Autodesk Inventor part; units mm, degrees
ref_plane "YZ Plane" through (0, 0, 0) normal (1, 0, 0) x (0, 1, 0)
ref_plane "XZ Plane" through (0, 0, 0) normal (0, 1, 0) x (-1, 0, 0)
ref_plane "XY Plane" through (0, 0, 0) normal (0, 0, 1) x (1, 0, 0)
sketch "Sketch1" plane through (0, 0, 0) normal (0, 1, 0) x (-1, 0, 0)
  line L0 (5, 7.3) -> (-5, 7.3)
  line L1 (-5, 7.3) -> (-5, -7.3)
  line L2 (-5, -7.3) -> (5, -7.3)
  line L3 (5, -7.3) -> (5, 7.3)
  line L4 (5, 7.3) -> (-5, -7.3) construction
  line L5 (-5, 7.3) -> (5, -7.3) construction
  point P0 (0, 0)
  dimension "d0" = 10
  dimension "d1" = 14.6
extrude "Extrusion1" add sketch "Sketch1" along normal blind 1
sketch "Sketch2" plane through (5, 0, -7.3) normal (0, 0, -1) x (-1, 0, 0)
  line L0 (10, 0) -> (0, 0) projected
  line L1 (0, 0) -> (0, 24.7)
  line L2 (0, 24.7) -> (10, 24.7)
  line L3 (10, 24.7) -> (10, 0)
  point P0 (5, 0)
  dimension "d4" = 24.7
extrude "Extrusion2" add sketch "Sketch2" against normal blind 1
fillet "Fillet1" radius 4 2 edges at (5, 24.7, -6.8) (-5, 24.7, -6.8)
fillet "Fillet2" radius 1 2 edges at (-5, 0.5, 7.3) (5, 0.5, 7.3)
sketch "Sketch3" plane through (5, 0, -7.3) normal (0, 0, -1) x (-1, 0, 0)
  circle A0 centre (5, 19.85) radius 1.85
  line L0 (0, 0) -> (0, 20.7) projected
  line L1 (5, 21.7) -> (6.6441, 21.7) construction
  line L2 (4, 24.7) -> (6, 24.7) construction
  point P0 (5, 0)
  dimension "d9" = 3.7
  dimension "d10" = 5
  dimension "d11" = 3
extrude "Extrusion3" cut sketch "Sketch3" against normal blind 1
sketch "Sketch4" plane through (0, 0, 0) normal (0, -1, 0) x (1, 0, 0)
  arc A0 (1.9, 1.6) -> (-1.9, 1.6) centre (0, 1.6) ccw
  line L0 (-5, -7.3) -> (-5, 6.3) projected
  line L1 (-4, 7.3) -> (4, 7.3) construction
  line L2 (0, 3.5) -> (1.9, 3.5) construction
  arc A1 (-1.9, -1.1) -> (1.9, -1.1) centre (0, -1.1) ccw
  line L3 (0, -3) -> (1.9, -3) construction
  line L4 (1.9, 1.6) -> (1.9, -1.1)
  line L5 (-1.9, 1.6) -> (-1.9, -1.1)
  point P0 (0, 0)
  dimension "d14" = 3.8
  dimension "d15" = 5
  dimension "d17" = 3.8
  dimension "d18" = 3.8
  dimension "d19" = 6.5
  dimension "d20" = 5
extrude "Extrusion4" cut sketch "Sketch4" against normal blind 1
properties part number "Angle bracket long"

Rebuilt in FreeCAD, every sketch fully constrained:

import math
import FreeCAD as App
import Part
import Sketcher

V = App.Vector


def edges_at(feature, points):
    """Names of the edges that pass closest to the given points."""
    edges = feature.Shape.Edges
    near = lambda p: min(range(len(edges)), key=lambda i: edges[i].distToShape(Part.Vertex(*p))[0])
    return sorted({f"Edge{near(p) + 1}" for p in points})


def add_polygon(sketch, points):
    """Adds a closed chain of lines whose ends are joined by coincident constraints."""
    first, n = sketch.GeometryCount, len(points)
    for a, b in zip(points, points[1:] + points[:1]):
        sketch.addGeometry(Part.LineSegment(App.Vector(*a, 0), App.Vector(*b, 0)), False)
    for i in range(n):
        sketch.addConstraint(Sketcher.Constraint("Coincident", first + i, 2, first + (i + 1) % n, 1))

doc = App.newDocument("Part")
body = doc.addObject("PartDesign::Body", "Body")

# Sketch on XZ plane
sketch1 = doc.addObject("Sketcher::SketchObject", "Sketch")
body.addObject(sketch1)
sketch1.AttachmentSupport = (doc.XZ_Plane, [""])
sketch1.MapMode = "FlatFace"
add_polygon(sketch1, [(-5, -7.3), (-5, 7.3), (5, 7.3), (5, -7.3)])  # lines 0-3
sketch1.addConstraint([
    Sketcher.Constraint("Vertical", 0),
    Sketcher.Constraint("Horizontal", 1),
    Sketcher.Constraint("Vertical", 2),
    Sketcher.Constraint("Horizontal", 3),
    Sketcher.Constraint("Symmetric", 0, 2, 2, 2, -1, 1),
    Sketcher.Constraint("DistanceX", 1, 1, 1, 2, 10.0),
    Sketcher.Constraint("DistanceY", 0, 1, 0, 2, 14.6),
])
pad1 = doc.addObject("PartDesign::Pad", "Pad")
body.addObject(pad1)
pad1.Profile = sketch1
pad1.Length = 1
pad1.Reversed = True

# Sketch on XY plane
sketch2 = doc.addObject("Sketcher::SketchObject", "Sketch001")
body.addObject(sketch2)
sketch2.AttachmentSupport = (doc.XY_Plane, [""])
sketch2.MapMode = "FlatFace"
sketch2.AttachmentOffset = App.Placement(V(0, 0, -7.3), App.Rotation())
add_polygon(sketch2, [(5, 0), (-5, 0), (-5, 24.7), (5, 24.7)])  # lines 0-3
sketch2.addConstraint([
    Sketcher.Constraint("Horizontal", 0),
    Sketcher.Constraint("Vertical", 1),
    Sketcher.Constraint("Horizontal", 2),
    Sketcher.Constraint("Vertical", 3),
    Sketcher.Constraint("Symmetric", 0, 2, 3, 2, -1, 1),
    Sketcher.Constraint("DistanceY", 1, 1, 1, 2, 24.7),
    Sketcher.Constraint("DistanceX", 0, 2, 0, 1, 10.0),
])
pad2 = doc.addObject("PartDesign::Pad", "Pad001")
body.addObject(pad2)
pad2.Profile = sketch2
pad2.Length = 1
doc.recompute()

fillet = doc.addObject("PartDesign::Fillet", "Fillet")
body.addObject(fillet)
fillet.Base = (pad2, edges_at(pad2, [(5, 24.7, -6.8), (-5, 24.7, -6.8)]))
fillet.Radius = 4
doc.recompute()

fillet2 = doc.addObject("PartDesign::Fillet", "Fillet001")
body.addObject(fillet2)
fillet2.Base = (fillet, edges_at(fillet, [(-5, 0.5, 7.3), (5, 0.5, 7.3)]))
fillet2.Radius = 1

# Sketch on XY plane
sketch3 = doc.addObject("Sketcher::SketchObject", "Sketch002")
body.addObject(sketch3)
sketch3.AttachmentSupport = (doc.XY_Plane, [""])
sketch3.MapMode = "FlatFace"
sketch3.AttachmentOffset = App.Placement(V(0, 0, -7.3), App.Rotation())
sketch3.addGeometry(Part.Circle(V(0, 19.85, 0), V(0, 0, 1), 1.85), False)
sketch3.addConstraint([
    Sketcher.Constraint("PointOnObject", 0, 3, -2),
    Sketcher.Constraint("Diameter", 0, 3.7),
    Sketcher.Constraint("DistanceY", -1, 1, 0, 3, 19.85),
])
pocket1 = doc.addObject("PartDesign::Pocket", "Pocket")
body.addObject(pocket1)
pocket1.Profile = sketch3
pocket1.Length = 1
pocket1.Reversed = True

# Sketch on XZ plane
sketch4 = doc.addObject("Sketcher::SketchObject", "Sketch003")
body.addObject(sketch4)
sketch4.AttachmentSupport = (doc.XZ_Plane, [""])
sketch4.MapMode = "FlatFace"
sketch4.addGeometry([
    Part.LineSegment(V(1.9, -1.1, 0), V(1.9, 1.6, 0)),
    Part.ArcOfCircle(Part.Circle(V(0, 1.6, 0), V(0, 0, 1), 1.9), math.radians(0), math.radians(180)),
    Part.LineSegment(V(-1.9, 1.6, 0), V(-1.9, -1.1, 0)),
    Part.ArcOfCircle(Part.Circle(V(0, -1.1, 0), V(0, 0, 1), 1.9), math.radians(180), math.radians(360)),
], False)
sketch4.addConstraint([
    Sketcher.Constraint("Tangent", 0, 2, 1, 1),
    Sketcher.Constraint("Tangent", 1, 2, 2, 1),
    Sketcher.Constraint("Tangent", 2, 2, 3, 1),
    Sketcher.Constraint("Tangent", 3, 2, 0, 1),
    Sketcher.Constraint("Vertical", 0),
    Sketcher.Constraint("Vertical", 2),
    Sketcher.Constraint("PointOnObject", 1, 3, -2),
    Sketcher.Constraint("Radius", 1, 1.9),
    Sketcher.Constraint("DistanceY", 0, 1, 0, 2, 2.7),
    Sketcher.Constraint("DistanceY", -1, 1, 1, 3, 1.6),
])
pocket2 = doc.addObject("PartDesign::Pocket", "Pocket001")
body.addObject(pocket2)
pocket2.Profile = sketch4
pocket2.Length = 1

doc.recompute()
